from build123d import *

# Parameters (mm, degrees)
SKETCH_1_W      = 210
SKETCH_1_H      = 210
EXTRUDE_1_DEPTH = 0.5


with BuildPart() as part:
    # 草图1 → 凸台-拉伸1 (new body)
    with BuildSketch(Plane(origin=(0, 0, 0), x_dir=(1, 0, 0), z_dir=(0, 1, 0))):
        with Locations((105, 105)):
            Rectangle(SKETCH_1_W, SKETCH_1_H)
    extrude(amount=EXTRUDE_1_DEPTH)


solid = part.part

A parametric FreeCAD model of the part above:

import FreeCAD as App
import Part
import Sketcher
from FreeCAD import Vector

doc = App.newDocument("Part")
body = doc.addObject("PartDesign::Body", "Body")

sketch1 = body.newObject("Sketcher::SketchObject", "Sketch")
sketch1.AttachmentSupport = (doc.getObject("XZ_Plane"), [""])
sketch1.MapMode = "FlatFace"
sketch1.addGeometry(Part.LineSegment(Vector(0, -210, 0), Vector(0, 0, 0)), False)
sketch1.addGeometry(Part.LineSegment(Vector(0, 0, 0), Vector(210, 0, 0)), False)
sketch1.addGeometry(Part.LineSegment(Vector(210, 0, 0), Vector(210, -210, 0)), False)
sketch1.addGeometry(Part.LineSegment(Vector(210, -210, 0), Vector(0, -210, 0)), False)
sketch1.addConstraint(Sketcher.Constraint("Coincident", 0, 2, 1, 1))
sketch1.addConstraint(Sketcher.Constraint("Coincident", 1, 2, 2, 1))
sketch1.addConstraint(Sketcher.Constraint("Coincident", 2, 2, 3, 1))
sketch1.addConstraint(Sketcher.Constraint("Coincident", 3, 2, 0, 1))
sketch1.addConstraint(Sketcher.Constraint("Vertical", 0))
sketch1.addConstraint(Sketcher.Constraint("Horizontal", 1))
sketch1.addConstraint(Sketcher.Constraint("Vertical", 2))
sketch1.addConstraint(Sketcher.Constraint("Horizontal", 3))
sketch1.addConstraint(Sketcher.Constraint("Coincident", 0, 2, -1, 1))
sketch1.addConstraint(Sketcher.Constraint("Equal", 3, 0))
sketch1.addConstraint(Sketcher.Constraint("DistanceX", 1, 1, 1, 2, 210.0))
pad1 = body.newObject("PartDesign::Pad", "Pad")
pad1.Profile = sketch1
pad1.Length = 0.5
pad1.Reversed = True

doc.recompute()
